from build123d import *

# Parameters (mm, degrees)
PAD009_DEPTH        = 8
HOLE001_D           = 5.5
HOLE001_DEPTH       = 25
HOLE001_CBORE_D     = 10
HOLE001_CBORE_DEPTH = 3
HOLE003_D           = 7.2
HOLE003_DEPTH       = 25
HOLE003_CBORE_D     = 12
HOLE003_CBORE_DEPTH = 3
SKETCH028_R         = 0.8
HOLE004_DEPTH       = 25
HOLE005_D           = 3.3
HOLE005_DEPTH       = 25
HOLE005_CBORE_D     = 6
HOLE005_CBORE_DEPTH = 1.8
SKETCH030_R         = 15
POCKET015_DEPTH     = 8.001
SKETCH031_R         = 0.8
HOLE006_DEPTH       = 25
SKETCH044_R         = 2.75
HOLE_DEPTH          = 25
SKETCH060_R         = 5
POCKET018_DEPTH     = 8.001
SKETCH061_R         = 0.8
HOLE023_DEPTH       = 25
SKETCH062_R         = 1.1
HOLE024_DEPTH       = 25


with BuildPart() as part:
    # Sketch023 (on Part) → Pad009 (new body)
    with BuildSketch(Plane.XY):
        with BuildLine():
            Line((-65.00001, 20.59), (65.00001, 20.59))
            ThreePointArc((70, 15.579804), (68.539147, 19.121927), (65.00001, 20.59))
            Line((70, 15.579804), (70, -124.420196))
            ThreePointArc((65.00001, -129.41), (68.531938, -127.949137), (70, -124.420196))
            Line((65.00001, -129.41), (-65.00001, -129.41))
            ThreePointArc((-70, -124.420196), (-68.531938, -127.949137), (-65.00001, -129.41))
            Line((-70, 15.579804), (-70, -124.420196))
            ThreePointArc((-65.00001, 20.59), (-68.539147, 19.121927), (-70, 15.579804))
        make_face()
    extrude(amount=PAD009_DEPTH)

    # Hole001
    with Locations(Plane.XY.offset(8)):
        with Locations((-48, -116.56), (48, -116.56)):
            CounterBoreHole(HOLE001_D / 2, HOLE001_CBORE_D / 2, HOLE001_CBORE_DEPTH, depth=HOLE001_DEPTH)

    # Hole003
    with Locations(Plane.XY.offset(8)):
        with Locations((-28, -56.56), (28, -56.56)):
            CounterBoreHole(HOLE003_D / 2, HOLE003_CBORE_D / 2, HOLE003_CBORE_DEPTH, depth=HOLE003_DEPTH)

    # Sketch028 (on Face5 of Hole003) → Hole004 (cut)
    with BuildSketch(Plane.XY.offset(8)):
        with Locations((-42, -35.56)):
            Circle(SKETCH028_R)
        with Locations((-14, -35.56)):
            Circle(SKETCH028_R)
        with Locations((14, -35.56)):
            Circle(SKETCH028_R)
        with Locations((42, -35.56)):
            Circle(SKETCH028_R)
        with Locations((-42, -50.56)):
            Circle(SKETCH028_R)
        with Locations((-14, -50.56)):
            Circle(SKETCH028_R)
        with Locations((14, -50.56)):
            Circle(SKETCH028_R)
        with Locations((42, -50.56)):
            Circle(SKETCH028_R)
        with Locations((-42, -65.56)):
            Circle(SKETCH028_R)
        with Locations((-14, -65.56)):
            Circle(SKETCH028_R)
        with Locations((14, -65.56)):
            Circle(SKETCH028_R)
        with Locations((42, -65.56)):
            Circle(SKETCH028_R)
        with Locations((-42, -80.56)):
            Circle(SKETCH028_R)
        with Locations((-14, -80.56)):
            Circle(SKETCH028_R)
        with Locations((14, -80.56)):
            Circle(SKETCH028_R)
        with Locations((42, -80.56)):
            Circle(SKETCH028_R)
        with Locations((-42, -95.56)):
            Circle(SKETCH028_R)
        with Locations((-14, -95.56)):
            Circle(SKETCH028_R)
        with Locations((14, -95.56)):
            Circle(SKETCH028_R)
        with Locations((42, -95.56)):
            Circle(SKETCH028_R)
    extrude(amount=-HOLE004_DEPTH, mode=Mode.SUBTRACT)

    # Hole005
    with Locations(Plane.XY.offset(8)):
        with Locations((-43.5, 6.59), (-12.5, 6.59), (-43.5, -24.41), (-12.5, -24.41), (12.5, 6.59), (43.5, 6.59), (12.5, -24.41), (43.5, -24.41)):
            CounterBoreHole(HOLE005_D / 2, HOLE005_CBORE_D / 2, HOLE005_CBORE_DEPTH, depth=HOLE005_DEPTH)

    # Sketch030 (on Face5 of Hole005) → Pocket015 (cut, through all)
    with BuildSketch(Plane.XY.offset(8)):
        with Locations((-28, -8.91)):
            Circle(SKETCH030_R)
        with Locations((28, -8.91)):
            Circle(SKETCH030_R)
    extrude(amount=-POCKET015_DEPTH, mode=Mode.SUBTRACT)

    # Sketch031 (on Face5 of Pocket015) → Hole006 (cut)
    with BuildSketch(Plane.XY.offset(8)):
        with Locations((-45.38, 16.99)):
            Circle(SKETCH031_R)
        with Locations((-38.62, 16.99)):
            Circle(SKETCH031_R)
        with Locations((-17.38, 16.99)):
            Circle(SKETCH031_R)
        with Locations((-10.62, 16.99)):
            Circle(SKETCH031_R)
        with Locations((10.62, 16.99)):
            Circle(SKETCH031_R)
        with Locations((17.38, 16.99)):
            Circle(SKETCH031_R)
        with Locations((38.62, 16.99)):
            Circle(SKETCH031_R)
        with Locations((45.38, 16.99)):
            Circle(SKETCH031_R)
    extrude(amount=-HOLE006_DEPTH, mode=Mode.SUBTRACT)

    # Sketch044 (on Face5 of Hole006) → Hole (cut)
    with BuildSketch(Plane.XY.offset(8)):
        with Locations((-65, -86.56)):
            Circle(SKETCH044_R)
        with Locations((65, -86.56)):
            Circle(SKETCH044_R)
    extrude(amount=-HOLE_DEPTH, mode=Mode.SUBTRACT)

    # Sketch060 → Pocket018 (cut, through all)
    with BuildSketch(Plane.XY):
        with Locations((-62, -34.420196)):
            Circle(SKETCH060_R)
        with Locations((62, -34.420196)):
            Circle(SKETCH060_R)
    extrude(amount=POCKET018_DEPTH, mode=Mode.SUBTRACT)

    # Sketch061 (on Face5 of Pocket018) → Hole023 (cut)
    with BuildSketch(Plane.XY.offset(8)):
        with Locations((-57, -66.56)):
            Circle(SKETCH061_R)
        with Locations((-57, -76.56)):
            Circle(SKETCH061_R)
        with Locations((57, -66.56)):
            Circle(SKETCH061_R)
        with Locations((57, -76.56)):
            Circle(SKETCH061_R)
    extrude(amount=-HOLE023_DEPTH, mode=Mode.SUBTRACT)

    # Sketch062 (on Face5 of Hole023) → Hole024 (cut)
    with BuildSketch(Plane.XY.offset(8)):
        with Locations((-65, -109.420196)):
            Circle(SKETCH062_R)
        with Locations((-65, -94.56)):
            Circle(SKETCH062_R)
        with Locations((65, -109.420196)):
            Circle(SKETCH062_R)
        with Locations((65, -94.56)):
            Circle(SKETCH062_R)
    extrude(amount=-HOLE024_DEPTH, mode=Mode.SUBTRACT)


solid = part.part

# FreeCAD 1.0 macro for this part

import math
import FreeCAD as App
import Part
import Sketcher

V = App.Vector

doc = App.newDocument("Part")
body = doc.addObject("PartDesign::Body", "Body")

sketch1 = body.newObject("Sketcher::SketchObject", "Sketch")
sketch1.AttachmentSupport = (doc.getObject("XY_Plane"), [""])
sketch1.MapMode = "FlatFace"
sketch1.addGeometry(Part.LineSegment(V(65.00001, 20.59, 0), V(-65.00001, 20.59, 0)), False)
sketch1.addGeometry(Part.ArcOfCircle(Part.Circle(V(-65.000009, 15.589999, 0), V(0, 0, 1), 5.000001), math.radians(90.000006), math.radians(180.116827)), False)
sketch1.addGeometry(Part.LineSegment(V(-70, 15.579804, 0), V(-70, -124.420196, 0)), False)
sketch1.addGeometry(Part.ArcOfCircle(Part.Circle(V(-65.000011, -124.410001, 0), V(0, 0, 1), 4.999999), math.radians(-179.883172), math.radians(-89.999986)), False)
sketch1.addGeometry(Part.LineSegment(V(-65.00001, -129.41, 0), V(65.00001, -129.41, 0)), False)
sketch1.addGeometry(Part.ArcOfCircle(Part.Circle(V(65.000011, -124.410001, 0), V(0, 0, 1), 4.999999), math.radians(-90.000014), math.radians(-0.116828)), False)
sketch1.addGeometry(Part.LineSegment(V(70, -124.420196, 0), V(70, 15.579804, 0)), False)
sketch1.addGeometry(Part.ArcOfCircle(Part.Circle(V(65.000009, 15.589999, 0), V(0, 0, 1), 5.000001), math.radians(-0.116827), math.radians(89.999994)), False)
sketch1.addConstraint(Sketcher.Constraint("Tangent", 0, 2, 1, 1))
sketch1.addConstraint(Sketcher.Constraint("Coincident", 1, 2, 2, 1))
sketch1.addConstraint(Sketcher.Constraint("Coincident", 2, 2, 3, 1))
sketch1.addConstraint(Sketcher.Constraint("Tangent", 3, 2, 4, 1))
sketch1.addConstraint(Sketcher.Constraint("Tangent", 4, 2, 5, 1))
sketch1.addConstraint(Sketcher.Constraint("Coincident", 5, 2, 6, 1))
sketch1.addConstraint(Sketcher.Constraint("Coincident", 6, 2, 7, 1))
sketch1.addConstraint(Sketcher.Constraint("Tangent", 7, 2, 0, 1))
sketch1.addConstraint(Sketcher.Constraint("Horizontal", 0))
sketch1.addConstraint(Sketcher.Constraint("Vertical", 2))
sketch1.addConstraint(Sketcher.Constraint("Horizontal", 4))
sketch1.addConstraint(Sketcher.Constraint("Vertical", 6))
sketch1.addConstraint(Sketcher.Constraint("Equal", 1, 3))
sketch1.addConstraint(Sketcher.Constraint("Equal", 3, 5))
sketch1.addConstraint(Sketcher.Constraint("Equal", 5, 7))
sketch1.addConstraint(Sketcher.Constraint("Symmetric", 2, 2, 5, 2, -2))
sketch1.addConstraint(Sketcher.Constraint("Horizontal", 1, 2, 6, 2))
sketch1.addConstraint(Sketcher.Constraint("Equal", 0, 4))
sketch1.addConstraint(Sketcher.Constraint("Radius", 1, 5.000001))
sketch1.addConstraint(Sketcher.Constraint("DistanceY", 2, 2, 2, 1, 140.0))
sketch1.addConstraint(Sketcher.Constraint("DistanceX", 1, 2, -1, 1, 70.0))
sketch1.addConstraint(Sketcher.Constraint("DistanceY", -1, 1, 1, 3, 15.589999))
sketch1.addConstraint(Sketcher.Constraint("DistanceY", -1, 1, 1, 2, 15.579804))
pad1 = body.newObject("PartDesign::Pad", "Pad")
pad1.Profile = sketch1
pad1.Length = 8

sketch2 = body.newObject("Sketcher::SketchObject", "Sketch001")
sketch2.AttachmentSupport = (doc.getObject("XY_Plane"), [""])
sketch2.MapMode = "FlatFace"
sketch2.AttachmentOffset = App.Placement(V(0, 0, 8), App.Rotation())
sketch2.addGeometry(Part.Circle(V(-48, -116.6, 0), V(0, 0, 1), 2.8), False)
sketch2.addGeometry(Part.Circle(V(48, -116.6, 0), V(0, 0, 1), 2.8), False)
sketch2.addConstraint(Sketcher.Constraint("Equal", 0, 1))
sketch2.addConstraint(Sketcher.Constraint("Symmetric", 0, 3, 1, 3, -2))
sketch2.addConstraint(Sketcher.Constraint("Diameter", 0, 5.5))
sketch2.addConstraint(Sketcher.Constraint("DistanceX", 0, 3, -1, 1, 48.0))
sketch2.addConstraint(Sketcher.Constraint("DistanceY", 0, 3, -1, 1, 116.56))
doc.recompute()
hole = body.newObject("PartDesign::Hole", "Hole")
hole.Profile = sketch2
hole.ThreadType = "None"
hole.Diameter = 5.5
hole.DepthType = "Dimension"
hole.Depth = 25
hole.DrillPoint = "Flat"
hole.HoleCutType = "Counterbore"
hole.HoleCutDiameter = 10
hole.HoleCutDepth = 3

sketch3 = body.newObject("Sketcher::SketchObject", "Sketch002")
sketch3.AttachmentSupport = (doc.getObject("XY_Plane"), [""])
sketch3.MapMode = "FlatFace"
sketch3.AttachmentOffset = App.Placement(V(0, 0, 8), App.Rotation())
sketch3.addGeometry(Part.Circle(V(-28, -56.6, 0), V(0, 0, 1), 3.6), False)
sketch3.addGeometry(Part.Circle(V(28, -56.6, 0), V(0, 0, 1), 3.6), False)
sketch3.addConstraint(Sketcher.Constraint("Equal", 0, 1))
sketch3.addConstraint(Sketcher.Constraint("Symmetric", 0, 3, 1, 3, -2))
sketch3.addConstraint(Sketcher.Constraint("Diameter", 0, 7.2))
sketch3.addConstraint(Sketcher.Constraint("DistanceX", 0, 3, -1, 1, 28.0))
sketch3.addConstraint(Sketcher.Constraint("DistanceY", 0, 3, -1, 1, 56.56))
doc.recompute()
hole2 = body.newObject("PartDesign::Hole", "Hole001")
hole2.Profile = sketch3
hole2.ThreadType = "None"
hole2.Diameter = 7.2
hole2.DepthType = "Dimension"
hole2.Depth = 25
hole2.DrillPoint = "Flat"
hole2.HoleCutType = "Counterbore"
hole2.HoleCutDiameter = 12
hole2.HoleCutDepth = 3

sketch4 = body.newObject("Sketcher::SketchObject", "Sketch003")
sketch4.AttachmentSupport = (doc.getObject("XY_Plane"), [""])
sketch4.MapMode = "FlatFace"
sketch4.AttachmentOffset = App.Placement(V(0, 0, 8), App.Rotation())
sketch4.addGeometry(Part.Circle(V(-42, -35.6, 0), V(0, 0, 1), 0.8), False)
sketch4.addGeometry(Part.Circle(V(-14, -35.6, 0), V(0, 0, 1), 0.8), False)
sketch4.addGeometry(Part.Circle(V(14, -35.6, 0), V(0, 0, 1), 0.8), False)
sketch4.addGeometry(Part.Circle(V(42, -35.6, 0), V(0, 0, 1), 0.8), False)
sketch4.addGeometry(Part.Circle(V(-42, -50.6, 0), V(0, 0, 1), 0.8), False)
sketch4.addGeometry(Part.Circle(V(-14, -50.6, 0), V(0, 0, 1), 0.8), False)
sketch4.addGeometry(Part.Circle(V(14, -50.6, 0), V(0, 0, 1), 0.8), False)
sketch4.addGeometry(Part.Circle(V(42, -50.6, 0), V(0, 0, 1), 0.8), False)
sketch4.addGeometry(Part.Circle(V(-42, -65.6, 0), V(0, 0, 1), 0.8), False)
sketch4.addGeometry(Part.Circle(V(-14, -65.6, 0), V(0, 0, 1), 0.8), False)
sketch4.addGeometry(Part.Circle(V(14, -65.6, 0), V(0, 0, 1), 0.8), False)
sketch4.addGeometry(Part.Circle(V(42, -65.6, 0), V(0, 0, 1), 0.8), False)
sketch4.addGeometry(Part.Circle(V(-42, -80.6, 0), V(0, 0, 1), 0.8), False)
sketch4.addGeometry(Part.Circle(V(-14, -80.6, 0), V(0, 0, 1), 0.8), False)
sketch4.addGeometry(Part.Circle(V(14, -80.6, 0), V(0, 0, 1), 0.8), False)
sketch4.addGeometry(Part.Circle(V(42, -80.6, 0), V(0, 0, 1), 0.8), False)
sketch4.addGeometry(Part.Circle(V(-42, -95.6, 0), V(0, 0, 1), 0.8), False)
sketch4.addGeometry(Part.Circle(V(-14, -95.6, 0), V(0, 0, 1), 0.8), False)
sketch4.addGeometry(Part.Circle(V(14, -95.6, 0), V(0, 0, 1), 0.8), False)
sketch4.addGeometry(Part.Circle(V(42, -95.6, 0), V(0, 0, 1), 0.8), False)
sketch4.addConstraint(Sketcher.Constraint("Equal", 0, 1))
sketch4.addConstraint(Sketcher.Constraint("Equal", 1, 2))
sketch4.addConstraint(Sketcher.Constraint("Equal", 2, 3))
sketch4.addConstraint(Sketcher.Constraint("Equal", 3, 4))
sketch4.addConstraint(Sketcher.Constraint("Equal", 4, 5))
sketch4.addConstraint(Sketcher.Constraint("Equal", 5, 6))
sketch4.addConstraint(Sketcher.Constraint("Equal", 6, 7))
sketch4.addConstraint(Sketcher.Constraint("Equal", 7, 8))
sketch4.addConstraint(Sketcher.Constraint("Equal", 8, 9))
sketch4.addConstraint(Sketcher.Constraint("Equal", 9, 10))
sketch4.addConstraint(Sketcher.Constraint("Equal", 10, 11))
sketch4.addConstraint(Sketcher.Constraint("Equal", 11, 12))
sketch4.addConstraint(Sketcher.Constraint("Equal", 12, 13))
sketch4.addConstraint(Sketcher.Constraint("Equal", 13, 14))
sketch4.addConstraint(Sketcher.Constraint("Equal", 14, 15))
sketch4.addConstraint(Sketcher.Constraint("Equal", 15, 16))
sketch4.addConstraint(Sketcher.Constraint("Equal", 16, 17))
sketch4.addConstraint(Sketcher.Constraint("Equal", 17, 18))
sketch4.addConstraint(Sketcher.Constraint("Equal", 18, 19))
sketch4.addConstraint(Sketcher.Constraint("Symmetric", 1, 3, 2, 3, -2))
sketch4.addConstraint(Sketcher.Constraint("Symmetric", 0, 3, 3, 3, -2))
sketch4.addConstraint(Sketcher.Constraint("Symmetric", 5, 3, 6, 3, -2))
sketch4.addConstraint(Sketcher.Constraint("Symmetric", 4, 3, 7, 3, -2))
sketch4.addConstraint(Sketcher.Constraint("Symmetric", 9, 3, 10, 3, -2))
sketch4.addConstraint(Sketcher.Constraint("Symmetric", 8, 3, 11, 3, -2))
sketch4.addConstraint(Sketcher.Constraint("Symmetric", 13, 3, 14, 3, -2))
sketch4.addConstraint(Sketcher.Constraint("Symmetric", 12, 3, 15, 3, -2))
sketch4.addConstraint(Sketcher.Constraint("Symmetric", 17, 3, 18, 3, -2))
sketch4.addConstraint(Sketcher.Constraint("Symmetric", 16, 3, 19, 3, -2))
sketch4.addConstraint(Sketcher.Constraint("Horizontal", 0, 3, 1, 3))
sketch4.addConstraint(Sketcher.Constraint("Horizontal", 4, 3, 5, 3))
sketch4.addConstraint(Sketcher.Constraint("Horizontal", 8, 3, 9, 3))
sketch4.addConstraint(Sketcher.Constraint("Horizontal", 12, 3, 13, 3))
sketch4.addConstraint(Sketcher.Constraint("Horizontal", 16, 3, 17, 3))
sketch4.addConstraint(Sketcher.Constraint("Vertical", 0, 3, 4, 3))
sketch4.addConstraint(Sketcher.Constraint("Vertical", 1, 3, 5, 3))
sketch4.addConstraint(Sketcher.Constraint("Vertical", 4, 3, 8, 3))
sketch4.addConstraint(Sketcher.Constraint("Vertical", 5, 3, 9, 3))
sketch4.addConstraint(Sketcher.Constraint("Vertical", 8, 3, 12, 3))
sketch4.addConstraint(Sketcher.Constraint("Vertical", 9, 3, 13, 3))
sketch4.addConstraint(Sketcher.Constraint("Vertical", 12, 3, 16, 3))
sketch4.addConstraint(Sketcher.Constraint("Vertical", 13, 3, 17, 3))
sketch4.addConstraint(Sketcher.Constraint("Diameter", 0, 1.6))
sketch4.addConstraint(Sketcher.Constraint("DistanceX", 0, 3, -1, 1, 42.0))
sketch4.addConstraint(Sketcher.Constraint("DistanceX", 1, 3, -1, 1, 14.0))
sketch4.addConstraint(Sketcher.Constraint("DistanceY", 4, 3, 0, 3, 15.0))
sketch4.addConstraint(Sketcher.Constraint("DistanceY", 8, 3, 4, 3, 15.0))
sketch4.addConstraint(Sketcher.Constraint("DistanceY", 12, 3, 8, 3, 15.0))
sketch4.addConstraint(Sketcher.Constraint("DistanceY", 16, 3, 12, 3, 15.0))
sketch4.addConstraint(Sketcher.Constraint("DistanceY", 0, 3, -1, 1, 35.56))
pocket1 = body.newObject("PartDesign::Pocket", "Pocket")
pocket1.Profile = sketch4
pocket1.Length = 25

sketch5 = body.newObject("Sketcher::SketchObject", "Sketch004")
sketch5.AttachmentSupport = (doc.getObject("XY_Plane"), [""])
sketch5.MapMode = "FlatFace"
sketch5.AttachmentOffset = App.Placement(V(0, 0, 8), App.Rotation())
sketch5.addGeometry(Part.Circle(V(-43.5, 6.6, 0), V(0, 0, 1), 1.6), False)
sketch5.addGeometry(Part.Circle(V(-12.5, 6.6, 0), V(0, 0, 1), 1.6), False)
sketch5.addGeometry(Part.Circle(V(-43.5, -24.4, 0), V(0, 0, 1), 1.6), False)
sketch5.addGeometry(Part.Circle(V(-12.5, -24.4, 0), V(0, 0, 1), 1.6), False)
sketch5.addGeometry(Part.Circle(V(12.5, 6.6, 0), V(0, 0, 1), 1.6), False)
sketch5.addGeometry(Part.Circle(V(43.5, 6.6, 0), V(0, 0, 1), 1.6), False)
sketch5.addGeometry(Part.Circle(V(12.5, -24.4, 0), V(0, 0, 1), 1.6), False)
sketch5.addGeometry(Part.Circle(V(43.5, -24.4, 0), V(0, 0, 1), 1.6), False)
sketch5.addConstraint(Sketcher.Constraint("Equal", 0, 1))
sketch5.addConstraint(Sketcher.Constraint("Equal", 1, 2))
sketch5.addConstraint(Sketcher.Constraint("Equal", 2, 3))
sketch5.addConstraint(Sketcher.Constraint("Equal", 3, 4))
sketch5.addConstraint(Sketcher.Constraint("Equal", 4, 5))
sketch5.addConstraint(Sketcher.Constraint("Equal", 5, 6))
sketch5.addConstraint(Sketcher.Constraint("Equal", 6, 7))
sketch5.addConstraint(Sketcher.Constraint("Symmetric", 1, 3, 4, 3, -2))
sketch5.addConstraint(Sketcher.Constraint("Symmetric", 0, 3, 5, 3, -2))
sketch5.addConstraint(Sketcher.Constraint("Symmetric", 3, 3, 6, 3, -2))
sketch5.addConstraint(Sketcher.Constraint("Symmetric", 2, 3, 7, 3, -2))
sketch5.addConstraint(Sketcher.Constraint("Horizontal", 0, 3, 1, 3))
sketch5.addConstraint(Sketcher.Constraint("Horizontal", 2, 3, 3, 3))
sketch5.addConstraint(Sketcher.Constraint("Vertical", 0, 3, 2, 3))
sketch5.addConstraint(Sketcher.Constraint("Vertical", 1, 3, 3, 3))
sketch5.addConstraint(Sketcher.Constraint("Diameter", 0, 3.3))
sketch5.addConstraint(Sketcher.Constraint("DistanceX", 0, 3, 1, 3, 31.0))
sketch5.addConstraint(Sketcher.Constraint("DistanceY", 2, 3, 0, 3, 31.0))
sketch5.addConstraint(Sketcher.Constraint("DistanceX", 1, 3, 4, 3, 25.0))
sketch5.addConstraint(Sketcher.Constraint("DistanceY", -1, 1, 0, 3, 6.59))
doc.recompute()
hole3 = body.newObject("PartDesign::Hole", "Hole002")
hole3.Profile = sketch5
hole3.ThreadType = "None"
hole3.Diameter = 3.3
hole3.DepthType = "Dimension"
hole3.Depth = 25
hole3.DrillPoint = "Flat"
hole3.HoleCutType = "Counterbore"
hole3.HoleCutDiameter = 6
hole3.HoleCutDepth = 1.8

sketch6 = body.newObject("Sketcher::SketchObject", "Sketch005")
sketch6.AttachmentSupport = (doc.getObject("XY_Plane"), [""])
sketch6.MapMode = "FlatFace"
sketch6.AttachmentOffset = App.Placement(V(0, 0, 8), App.Rotation())
sketch6.addGeometry(Part.Circle(V(-28, -9, 0), V(0, 0, 1), 15), False)
sketch6.addGeometry(Part.Circle(V(28, -9, 0), V(0, 0, 1), 15), False)
sketch6.addConstraint(Sketcher.Constraint("Equal", 0, 1))
sketch6.addConstraint(Sketcher.Constraint("Symmetric", 0, 3, 1, 3, -2))
sketch6.addConstraint(Sketcher.Constraint("Diameter", 0, 30.0))
sketch6.addConstraint(Sketcher.Constraint("DistanceX", 0, 3, -1, 1, 28.0))
sketch6.addConstraint(Sketcher.Constraint("DistanceY", 0, 3, -1, 1, 8.91))
pocket2 = body.newObject("PartDesign::Pocket", "Pocket001")
pocket2.Profile = sketch6
pocket2.Type = "ThroughAll"

sketch7 = body.newObject("Sketcher::SketchObject", "Sketch006")
sketch7.AttachmentSupport = (doc.getObject("XY_Plane"), [""])
sketch7.MapMode = "FlatFace"
sketch7.AttachmentOffset = App.Placement(V(0, 0, 8), App.Rotation())
sketch7.addGeometry(Part.Circle(V(-45.4, 17, 0), V(0, 0, 1), 0.8), False)
sketch7.addGeometry(Part.Circle(V(-38.6, 17, 0), V(0, 0, 1), 0.8), False)
sketch7.addGeometry(Part.Circle(V(-17.4, 17, 0), V(0, 0, 1), 0.8), False)
sketch7.addGeometry(Part.Circle(V(-10.6, 17, 0), V(0, 0, 1), 0.8), False)
sketch7.addGeometry(Part.Circle(V(10.6, 17, 0), V(0, 0, 1), 0.8), False)
sketch7.addGeometry(Part.Circle(V(17.4, 17, 0), V(0, 0, 1), 0.8), False)
sketch7.addGeometry(Part.Circle(V(38.6, 17, 0), V(0, 0, 1), 0.8), False)
sketch7.addGeometry(Part.Circle(V(45.4, 17, 0), V(0, 0, 1), 0.8), False)
sketch7.addConstraint(Sketcher.Constraint("Equal", 0, 1))
sketch7.addConstraint(Sketcher.Constraint("Equal", 1, 2))
sketch7.addConstraint(Sketcher.Constraint("Equal", 2, 3))
sketch7.addConstraint(Sketcher.Constraint("Equal", 3, 4))
sketch7.addConstraint(Sketcher.Constraint("Equal", 4, 5))
sketch7.addConstraint(Sketcher.Constraint("Equal", 5, 6))
sketch7.addConstraint(Sketcher.Constraint("Equal", 6, 7))
sketch7.addConstraint(Sketcher.Constraint("Symmetric", 3, 3, 4, 3, -2))
sketch7.addConstraint(Sketcher.Constraint("Symmetric", 2, 3, 5, 3, -2))
sketch7.addConstraint(Sketcher.Constraint("Symmetric", 1, 3, 6, 3, -2))
sketch7.addConstraint(Sketcher.Constraint("Symmetric", 0, 3, 7, 3, -2))
sketch7.addConstraint(Sketcher.Constraint("Horizontal", 0, 3, 1, 3))
sketch7.addConstraint(Sketcher.Constraint("Horizontal", 1, 3, 2, 3))
sketch7.addConstraint(Sketcher.Constraint("Horizontal", 2, 3, 3, 3))
sketch7.addConstraint(Sketcher.Constraint("Diameter", 0, 1.6))
sketch7.addConstraint(Sketcher.Constraint("DistanceX", 0, 3, 2, 3, 28.0))
sketch7.addConstraint(Sketcher.Constraint("DistanceX", 1, 3, 3, 3, 28.0))
sketch7.addConstraint(Sketcher.Constraint("DistanceX", 2, 3, 4, 3, 28.0))
sketch7.addConstraint(Sketcher.Constraint("DistanceX", 0, 3, -1, 1, 45.38))
sketch7.addConstraint(Sketcher.Constraint("DistanceY", -1, 1, 0, 3, 16.99))
pocket3 = body.newObject("PartDesign::Pocket", "Pocket002")
pocket3.Profile = sketch7
pocket3.Length = 25

sketch8 = body.newObject("Sketcher::SketchObject", "Sketch007")
sketch8.AttachmentSupport = (doc.getObject("XY_Plane"), [""])
sketch8.MapMode = "FlatFace"
sketch8.AttachmentOffset = App.Placement(V(0, 0, 8), App.Rotation())
sketch8.addGeometry(Part.Circle(V(-65, -86.6, 0), V(0, 0, 1), 2.8), False)
sketch8.addGeometry(Part.Circle(V(65, -86.6, 0), V(0, 0, 1), 2.8), False)
sketch8.addConstraint(Sketcher.Constraint("Equal", 0, 1))
sketch8.addConstraint(Sketcher.Constraint("Symmetric", 0, 3, 1, 3, -2))
sketch8.addConstraint(Sketcher.Constraint("Diameter", 0, 5.5))
sketch8.addConstraint(Sketcher.Constraint("DistanceX", 0, 3, -1, 1, 65.0))
sketch8.addConstraint(Sketcher.Constraint("DistanceY", 0, 3, -1, 1, 86.56))
pocket4 = body.newObject("PartDesign::Pocket", "Pocket003")
pocket4.Profile = sketch8
pocket4.Length = 25

sketch9 = body.newObject("Sketcher::SketchObject", "Sketch008")
sketch9.AttachmentSupport = (doc.getObject("XY_Plane"), [""])
sketch9.MapMode = "FlatFace"
sketch9.addGeometry(Part.Circle(V(-62, -34, 0), V(0, 0, 1), 5), False)
sketch9.addGeometry(Part.Circle(V(62, -34, 0), V(0, 0, 1), 5), False)
sketch9.addConstraint(Sketcher.Constraint("Equal", 0, 1))
sketch9.addConstraint(Sketcher.Constraint("Symmetric", 0, 3, 1, 3, -2))
sketch9.addConstraint(Sketcher.Constraint("Diameter", 0, 10.0))
sketch9.addConstraint(Sketcher.Constraint("DistanceX", 0, 3, -1, 1, 62.0))
sketch9.addConstraint(Sketcher.Constraint("DistanceY", 0, 3, -1, 1, 34.420196))
pocket5 = body.newObject("PartDesign::Pocket", "Pocket004")
pocket5.Profile = sketch9
pocket5.Type = "ThroughAll"
pocket5.Reversed = True

sketch10 = body.newObject("Sketcher::SketchObject", "Sketch009")
sketch10.AttachmentSupport = (doc.getObject("XY_Plane"), [""])
sketch10.MapMode = "FlatFace"
sketch10.AttachmentOffset = App.Placement(V(0, 0, 8), App.Rotation())
sketch10.addGeometry(Part.Circle(V(-57, -66.6, 0), V(0, 0, 1), 0.8), False)
sketch10.addGeometry(Part.Circle(V(-57, -76.6, 0), V(0, 0, 1), 0.8), False)
sketch10.addGeometry(Part.Circle(V(57, -66.6, 0), V(0, 0, 1), 0.8), False)
sketch10.addGeometry(Part.Circle(V(57, -76.6, 0), V(0, 0, 1), 0.8), False)
sketch10.addConstraint(Sketcher.Constraint("Equal", 0, 1))
sketch10.addConstraint(Sketcher.Constraint("Equal", 1, 2))
sketch10.addConstraint(Sketcher.Constraint("Equal", 2, 3))
sketch10.addConstraint(Sketcher.Constraint("Symmetric", 0, 3, 2, 3, -2))
sketch10.addConstraint(Sketcher.Constraint("Symmetric", 1, 3, 3, 3, -2))
sketch10.addConstraint(Sketcher.Constraint("Vertical", 0, 3, 1, 3))
sketch10.addConstraint(Sketcher.Constraint("Diameter", 0, 1.6))
sketch10.addConstraint(Sketcher.Constraint("DistanceX", 0, 3, -1, 1, 57.0))
sketch10.addConstraint(Sketcher.Constraint("DistanceY", 1, 3, 0, 3, 10.0))
sketch10.addConstraint(Sketcher.Constraint("DistanceY", 0, 3, -1, 1, 66.56))
pocket6 = body.newObject("PartDesign::Pocket", "Pocket005")
pocket6.Profile = sketch10
pocket6.Length = 25

sketch11 = body.newObject("Sketcher::SketchObject", "Sketch010")
sketch11.AttachmentSupport = (doc.getObject("XY_Plane"), [""])
sketch11.MapMode = "FlatFace"
sketch11.AttachmentOffset = App.Placement(V(0, 0, 8), App.Rotation())
sketch11.addGeometry(Part.Circle(V(-65, -109.4, 0), V(0, 0, 1), 1.1), False)
sketch11.addGeometry(Part.Circle(V(-65, -94.6, 0), V(0, 0, 1), 1.1), False)
sketch11.addGeometry(Part.Circle(V(65, -109.4, 0), V(0, 0, 1), 1.1), False)
sketch11.addGeometry(Part.Circle(V(65, -94.6, 0), V(0, 0, 1), 1.1), False)
sketch11.addConstraint(Sketcher.Constraint("Equal", 0, 1))
sketch11.addConstraint(Sketcher.Constraint("Equal", 1, 2))
sketch11.addConstraint(Sketcher.Constraint("Equal", 2, 3))
sketch11.addConstraint(Sketcher.Constraint("Symmetric", 0, 3, 2, 3, -2))
sketch11.addConstraint(Sketcher.Constraint("Symmetric", 1, 3, 3, 3, -2))
sketch11.addConstraint(Sketcher.Constraint("Vertical", 0, 3, 1, 3))
sketch11.addConstraint(Sketcher.Constraint("Diameter", 0, 2.2))
sketch11.addConstraint(Sketcher.Constraint("DistanceX", 0, 3, -1, 1, 65.0))
sketch11.addConstraint(Sketcher.Constraint("DistanceY", 1, 3, -1, 1, 94.56))
sketch11.addConstraint(Sketcher.Constraint("DistanceY", 0, 3, -1, 1, 109.420196))
pocket7 = body.newObject("PartDesign::Pocket", "Pocket006")
pocket7.Profile = sketch11
pocket7.Length = 25

doc.recompute()
